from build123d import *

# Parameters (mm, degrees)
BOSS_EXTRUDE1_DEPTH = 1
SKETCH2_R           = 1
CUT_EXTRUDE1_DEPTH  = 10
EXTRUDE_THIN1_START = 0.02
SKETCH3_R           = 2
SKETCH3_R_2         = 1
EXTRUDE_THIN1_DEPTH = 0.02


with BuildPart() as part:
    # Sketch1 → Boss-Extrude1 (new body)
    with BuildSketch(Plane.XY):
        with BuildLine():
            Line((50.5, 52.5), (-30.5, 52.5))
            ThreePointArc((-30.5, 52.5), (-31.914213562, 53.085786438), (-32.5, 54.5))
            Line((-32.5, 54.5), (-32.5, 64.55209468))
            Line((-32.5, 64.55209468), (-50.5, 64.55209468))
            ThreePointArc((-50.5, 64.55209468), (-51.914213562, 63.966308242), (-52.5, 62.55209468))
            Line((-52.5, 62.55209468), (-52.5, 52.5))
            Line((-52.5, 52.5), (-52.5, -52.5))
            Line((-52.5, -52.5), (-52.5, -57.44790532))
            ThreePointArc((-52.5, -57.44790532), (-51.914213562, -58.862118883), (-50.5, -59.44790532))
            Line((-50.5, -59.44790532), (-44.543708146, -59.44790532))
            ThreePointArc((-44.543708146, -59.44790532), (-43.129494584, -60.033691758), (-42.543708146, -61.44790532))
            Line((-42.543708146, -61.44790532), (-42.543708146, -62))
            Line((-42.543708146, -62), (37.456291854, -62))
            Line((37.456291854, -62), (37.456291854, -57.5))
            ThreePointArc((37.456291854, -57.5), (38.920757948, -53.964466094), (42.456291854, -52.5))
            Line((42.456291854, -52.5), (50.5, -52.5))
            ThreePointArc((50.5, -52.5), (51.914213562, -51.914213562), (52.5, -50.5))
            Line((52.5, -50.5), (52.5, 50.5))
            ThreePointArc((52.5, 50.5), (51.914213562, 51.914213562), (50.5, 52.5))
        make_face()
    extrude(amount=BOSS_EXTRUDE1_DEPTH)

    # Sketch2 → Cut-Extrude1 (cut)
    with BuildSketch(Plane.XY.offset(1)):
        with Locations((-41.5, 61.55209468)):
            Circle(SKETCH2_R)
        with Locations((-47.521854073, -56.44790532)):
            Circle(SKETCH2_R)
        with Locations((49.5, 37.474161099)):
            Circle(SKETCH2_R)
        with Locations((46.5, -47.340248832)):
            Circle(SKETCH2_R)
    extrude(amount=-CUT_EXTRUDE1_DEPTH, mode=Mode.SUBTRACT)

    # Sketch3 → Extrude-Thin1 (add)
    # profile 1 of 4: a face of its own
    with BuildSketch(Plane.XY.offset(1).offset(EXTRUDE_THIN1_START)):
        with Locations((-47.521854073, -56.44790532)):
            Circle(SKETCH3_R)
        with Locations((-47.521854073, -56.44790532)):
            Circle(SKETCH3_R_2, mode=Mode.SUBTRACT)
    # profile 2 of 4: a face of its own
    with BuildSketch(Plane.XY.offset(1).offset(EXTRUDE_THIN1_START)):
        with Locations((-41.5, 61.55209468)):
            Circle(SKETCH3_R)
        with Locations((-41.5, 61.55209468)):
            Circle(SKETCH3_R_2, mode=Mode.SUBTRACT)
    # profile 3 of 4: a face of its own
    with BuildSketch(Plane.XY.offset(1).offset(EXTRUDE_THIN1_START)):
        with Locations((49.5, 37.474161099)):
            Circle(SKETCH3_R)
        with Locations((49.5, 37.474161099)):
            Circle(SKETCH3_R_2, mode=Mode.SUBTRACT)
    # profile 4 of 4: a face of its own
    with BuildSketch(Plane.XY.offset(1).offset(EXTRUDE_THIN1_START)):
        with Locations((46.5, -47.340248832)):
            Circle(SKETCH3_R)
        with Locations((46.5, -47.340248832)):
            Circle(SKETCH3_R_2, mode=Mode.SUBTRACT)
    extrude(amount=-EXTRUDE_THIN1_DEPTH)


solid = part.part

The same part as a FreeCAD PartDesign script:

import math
import FreeCAD as App
import Part
import Sketcher

V = App.Vector
Q = App.Units.Quantity

doc = App.newDocument("Part")
body = doc.addObject("PartDesign::Body", "Body")

# Sketch on XY plane
sketch1 = body.newObject("Sketcher::SketchObject", "Sketch")
sketch1.AttachmentSupport = (doc.getObject("XY_Plane"), [""])
sketch1.MapMode = "FlatFace"
sketch1.addGeometry([
    Part.LineSegment(V(50.5, 52.5, 0), V(-30.5, 52.5, 0)),  # 0
    Part.ArcOfCircle(Part.Circle(V(-30.5, 54.5, 0), V(0, 0, 1), 2), math.radians(-180), math.radians(-90)),  # 1
    Part.LineSegment(V(-32.5, 54.5, 0), V(-32.5, 64.6, 0)),  # 2
    Part.LineSegment(V(-32.5, 64.6, 0), V(-50.5, 64.6, 0)),  # 3
    Part.ArcOfCircle(Part.Circle(V(-50.5, 62.6, 0), V(0, 0, 1), 2), math.radians(90), math.radians(180)),  # 4
    Part.LineSegment(V(-52.5, 62.6, 0), V(-52.5, -57.4, 0)),  # 5
    Part.ArcOfCircle(Part.Circle(V(-50.5, -57.4, 0), V(0, 0, 1), 2), math.radians(180), math.radians(270)),  # 6
    Part.LineSegment(V(-50.5, -59.4, 0), V(-44.5, -59.4, 0)),  # 7
    Part.ArcOfCircle(Part.Circle(V(-44.5, -61.4, 0), V(0, 0, 1), 2), math.radians(0), math.radians(90)),  # 8
    Part.LineSegment(V(-42.5, -61.4, 0), V(-42.5, -62, 0)),  # 9
    Part.LineSegment(V(-42.5, -62, 0), V(37.5, -62, 0)),  # 10
    Part.LineSegment(V(37.5, -62, 0), V(37.5, -57.5, 0)),  # 11
    Part.ArcOfCircle(Part.Circle(V(42.5, -57.5, 0), V(0, 0, 1), 5), math.radians(90), math.radians(180)),  # 12
    Part.LineSegment(V(42.5, -52.5, 0), V(50.5, -52.5, 0)),  # 13
    Part.ArcOfCircle(Part.Circle(V(50.5, -50.5, 0), V(0, 0, 1), 2), math.radians(-90), math.radians(0)),  # 14
    Part.LineSegment(V(52.5, -50.5, 0), V(52.5, 50.5, 0)),  # 15
    Part.ArcOfCircle(Part.Circle(V(50.5, 50.5, 0), V(0, 0, 1), 2), math.radians(0), math.radians(90)),  # 16
], False)
sketch1.addConstraint([
    Sketcher.Constraint("Tangent", 0, 2, 1, 2),
    Sketcher.Constraint("Tangent", 1, 1, 2, 1),
    Sketcher.Constraint("Coincident", 2, 2, 3, 1),
    Sketcher.Constraint("Tangent", 3, 2, 4, 1),
    Sketcher.Constraint("Tangent", 4, 2, 5, 1),
    Sketcher.Constraint("Tangent", 5, 2, 6, 1),
    Sketcher.Constraint("Tangent", 6, 2, 7, 1),
    Sketcher.Constraint("Tangent", 7, 2, 8, 2),
    Sketcher.Constraint("Tangent", 8, 1, 9, 1),
    Sketcher.Constraint("Coincident", 9, 2, 10, 1),
    Sketcher.Constraint("Coincident", 10, 2, 11, 1),
    Sketcher.Constraint("Tangent", 11, 2, 12, 2),
    Sketcher.Constraint("Tangent", 12, 1, 13, 1),
    Sketcher.Constraint("Tangent", 13, 2, 14, 1),
    Sketcher.Constraint("Tangent", 14, 2, 15, 1),
    Sketcher.Constraint("Tangent", 15, 2, 16, 1),
    Sketcher.Constraint("Tangent", 16, 2, 0, 1),
    Sketcher.Constraint("Horizontal", 0),
    Sketcher.Constraint("Vertical", 2),
    Sketcher.Constraint("Horizontal", 3),
    Sketcher.Constraint("Vertical", 5),
    Sketcher.Constraint("Horizontal", 7),
    Sketcher.Constraint("Vertical", 9),
    Sketcher.Constraint("Horizontal", 10),
    Sketcher.Constraint("Vertical", 11),
    Sketcher.Constraint("Horizontal", 13),
    Sketcher.Constraint("Vertical", 15),
    Sketcher.Constraint("Equal", 1, 4),
    Sketcher.Constraint("Equal", 4, 6),
    Sketcher.Constraint("Equal", 6, 8),
    Sketcher.Constraint("Equal", 8, 14),
    Sketcher.Constraint("Equal", 14, 16),
    Sketcher.Constraint("Radius", 1, Q("2 mm")),
    Sketcher.Constraint("Radius", 12, Q("5 mm")),
    Sketcher.Constraint("DistanceX", 0, 2, 0, 1, Q("81 mm")),
    Sketcher.Constraint("DistanceX", 3, 2, 3, 1, Q("18 mm")),
    Sketcher.Constraint("DistanceX", 10, 1, 10, 2, Q("80 mm")),
    Sketcher.Constraint("DistanceY", 5, 2, 5, 1, Q("120 mm")),
    Sketcher.Constraint("DistanceY", 15, 1, 15, 2, Q("101 mm")),
    Sketcher.Constraint("DistanceY", 11, 1, 11, 2, Q("4.5 mm")),
    Sketcher.Constraint("DistanceY", 9, 2, -1, 1, Q("62 mm")),
    Sketcher.Constraint("DistanceX", 1, 3, -1, 1, Q("30.5 mm")),
    Sketcher.Constraint("DistanceX", 7, 1, 7, 2, Q("5.956292 mm")),
    Sketcher.Constraint("DistanceY", 2, 1, 2, 2, Q("10.052095 mm")),
])
pad1 = body.newObject("PartDesign::Pad", "Pad")
pad1.Profile = sketch1
pad1.Length = 1

# Sketch on XY plane
sketch2 = body.newObject("Sketcher::SketchObject", "Sketch001")
sketch2.AttachmentSupport = (doc.getObject("XY_Plane"), [""])
sketch2.MapMode = "FlatFace"
sketch2.AttachmentOffset = App.Placement(V(0, 0, 1), App.Rotation())
sketch2.addGeometry([
    Part.Circle(V(-41.5, 61.6, 0), V(0, 0, 1), 1),
    Part.Circle(V(-47.5, -56.4, 0), V(0, 0, 1), 1),
    Part.Circle(V(49.5, 37.5, 0), V(0, 0, 1), 1),
    Part.Circle(V(46.5, -47.3, 0), V(0, 0, 1), 1),
], False)
sketch2.addConstraint([
    Sketcher.Constraint("Equal", 0, 1),
    Sketcher.Constraint("Equal", 1, 2),
    Sketcher.Constraint("Equal", 2, 3),
    Sketcher.Constraint("Diameter", 0, Q("2 mm")),
    Sketcher.Constraint("DistanceY", 1, 3, 0, 3, Q("118 mm")),
    Sketcher.Constraint("DistanceX", 0, 3, 2, 3, Q("91 mm")),
    Sketcher.Constraint("DistanceX", 3, 3, 2, 3, Q("3 mm")),
    Sketcher.Constraint("DistanceX", 0, 3, -1, 1, Q("41.5 mm")),
    Sketcher.Constraint("DistanceY", -1, 1, 2, 3, Q("37.474161 mm")),
    Sketcher.Constraint("DistanceY", 3, 3, -1, 1, Q("47.340249 mm")),
    Sketcher.Constraint("DistanceY", -1, 1, 0, 3, Q("61.552095 mm")),
    Sketcher.Constraint("DistanceX", 1, 3, -1, 1, Q("47.521854 mm")),
])
pocket1 = body.newObject("PartDesign::Pocket", "Pocket")
pocket1.Profile = sketch2
pocket1.Length = 10

# Sketch on XY plane
sketch3 = body.newObject("Sketcher::SketchObject", "Sketch002")
sketch3.AttachmentSupport = (doc.getObject("XY_Plane"), [""])
sketch3.MapMode = "FlatFace"
sketch3.AttachmentOffset = App.Placement(V(0, 0, 1.02), App.Rotation())
sketch3.addGeometry([
    Part.Circle(V(-47.5, -56.4, 0), V(0, 0, 1), 2),  # 0
    Part.Circle(V(-47.5, -56.4, 0), V(0, 0, 1), 1),  # 1
    Part.Circle(V(-41.5, 61.6, 0), V(0, 0, 1), 2),  # 2
    Part.Circle(V(-41.5, 61.6, 0), V(0, 0, 1), 1),  # 3
    Part.Circle(V(49.5, 37.5, 0), V(0, 0, 1), 2),  # 4
    Part.Circle(V(49.5, 37.5, 0), V(0, 0, 1), 1),  # 5
    Part.Circle(V(46.5, -47.3, 0), V(0, 0, 1), 2),  # 6
    Part.Circle(V(46.5, -47.3, 0), V(0, 0, 1), 1),  # 7
], False)
sketch3.addConstraint([
    Sketcher.Constraint("Coincident", 1, 3, 0, 3),
    Sketcher.Constraint("Coincident", 3, 3, 2, 3),
    Sketcher.Constraint("Coincident", 5, 3, 4, 3),
    Sketcher.Constraint("Coincident", 7, 3, 6, 3),
    Sketcher.Constraint("Equal", 0, 2),
    Sketcher.Constraint("Equal", 1, 3),
    Sketcher.Constraint("Equal", 2, 4),
    Sketcher.Constraint("Equal", 3, 5),
    Sketcher.Constraint("Equal", 4, 6),
    Sketcher.Constraint("Equal", 5, 7),
    Sketcher.Constraint("Diameter", 0, Q("4 mm")),
    Sketcher.Constraint("Diameter", 1, Q("2 mm")),
    Sketcher.Constraint("DistanceY", 0, 3, 2, 3, Q("118 mm")),
    Sketcher.Constraint("DistanceX", 2, 3, 4, 3, Q("91 mm")),
    Sketcher.Constraint("DistanceX", 6, 3, 4, 3, Q("3 mm")),
    Sketcher.Constraint("DistanceX", 2, 3, -1, 1, Q("41.5 mm")),
    Sketcher.Constraint("DistanceY", -1, 1, 4, 3, Q("37.474161 mm")),
    Sketcher.Constraint("DistanceY", 6, 3, -1, 1, Q("47.340249 mm")),
    Sketcher.Constraint("DistanceX", 0, 3, -1, 1, Q("47.521854 mm")),
    Sketcher.Constraint("DistanceY", 0, 3, -1, 1, Q("56.447905 mm")),
])
pad2 = body.newObject("PartDesign::Pad", "Pad001")
pad2.Profile = sketch3
pad2.Length = 0.02
pad2.Reversed = True

doc.recompute()
